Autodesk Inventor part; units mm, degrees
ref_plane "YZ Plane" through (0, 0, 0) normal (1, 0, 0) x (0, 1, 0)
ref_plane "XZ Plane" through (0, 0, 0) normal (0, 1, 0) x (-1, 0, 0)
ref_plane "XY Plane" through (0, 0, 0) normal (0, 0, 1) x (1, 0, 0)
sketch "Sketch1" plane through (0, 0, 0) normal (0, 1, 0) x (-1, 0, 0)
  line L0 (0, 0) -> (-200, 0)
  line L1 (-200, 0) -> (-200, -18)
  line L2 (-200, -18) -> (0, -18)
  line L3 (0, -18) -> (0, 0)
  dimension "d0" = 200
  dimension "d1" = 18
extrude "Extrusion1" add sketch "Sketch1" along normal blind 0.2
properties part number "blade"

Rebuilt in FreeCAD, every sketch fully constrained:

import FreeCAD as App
import Part
import Sketcher

doc = App.newDocument("Part")
params = doc.addObject("Spreadsheet::Sheet", "Params")
for row, (alias, value) in enumerate([
    ("sketch1_width", "200 mm"),
    ("sketch1_height", "18 mm"),
    ("pad1_length", "0.2 mm"),
], start=1):
    params.set(f"A{row}", alias)
    params.set(f"B{row}", "=" + value)
    params.setAlias(f"B{row}", alias)

body = doc.addObject("PartDesign::Body", "Body")

# Sketch on XZ plane
sketch1 = body.newObject("Sketcher::SketchObject", "Sketch")
sketch1.AttachmentSupport = (doc.getObject("XZ_Plane"), [""])
sketch1.MapMode = "FlatFace"
sketch1.addGeometry([
    Part.LineSegment(App.Vector(0, -18, 0), App.Vector(0, 0, 0)),
    Part.LineSegment(App.Vector(0, 0, 0), App.Vector(200, 0, 0)),
    Part.LineSegment(App.Vector(200, 0, 0), App.Vector(200, -18, 0)),
    Part.LineSegment(App.Vector(200, -18, 0), App.Vector(0, -18, 0)),
], False)
sketch1.addConstraint([
    Sketcher.Constraint("Coincident", 0, 2, 1, 1),
    Sketcher.Constraint("Coincident", 1, 2, 2, 1),
    Sketcher.Constraint("Coincident", 2, 2, 3, 1),
    Sketcher.Constraint("Coincident", 3, 2, 0, 1),
    Sketcher.Constraint("Vertical", 0),
    Sketcher.Constraint("Horizontal", 1),
    Sketcher.Constraint("Vertical", 2),
    Sketcher.Constraint("Horizontal", 3),
    Sketcher.Constraint("Coincident", 0, 2, -1, 1),
    Sketcher.Constraint("DistanceX", 1, 1, 1, 2, 200.0),
    Sketcher.Constraint("DistanceY", 0, 1, 0, 2, 18.0),
])
sketch1.setExpression("Constraints[9]", "Params.sketch1_width")
sketch1.setExpression("Constraints[10]", "Params.sketch1_height")
pad1 = body.newObject("PartDesign::Pad", "Pad")
pad1.Profile = sketch1
pad1.setExpression("Length", "Params.pad1_length")
pad1.Reversed = True

doc.recompute()
